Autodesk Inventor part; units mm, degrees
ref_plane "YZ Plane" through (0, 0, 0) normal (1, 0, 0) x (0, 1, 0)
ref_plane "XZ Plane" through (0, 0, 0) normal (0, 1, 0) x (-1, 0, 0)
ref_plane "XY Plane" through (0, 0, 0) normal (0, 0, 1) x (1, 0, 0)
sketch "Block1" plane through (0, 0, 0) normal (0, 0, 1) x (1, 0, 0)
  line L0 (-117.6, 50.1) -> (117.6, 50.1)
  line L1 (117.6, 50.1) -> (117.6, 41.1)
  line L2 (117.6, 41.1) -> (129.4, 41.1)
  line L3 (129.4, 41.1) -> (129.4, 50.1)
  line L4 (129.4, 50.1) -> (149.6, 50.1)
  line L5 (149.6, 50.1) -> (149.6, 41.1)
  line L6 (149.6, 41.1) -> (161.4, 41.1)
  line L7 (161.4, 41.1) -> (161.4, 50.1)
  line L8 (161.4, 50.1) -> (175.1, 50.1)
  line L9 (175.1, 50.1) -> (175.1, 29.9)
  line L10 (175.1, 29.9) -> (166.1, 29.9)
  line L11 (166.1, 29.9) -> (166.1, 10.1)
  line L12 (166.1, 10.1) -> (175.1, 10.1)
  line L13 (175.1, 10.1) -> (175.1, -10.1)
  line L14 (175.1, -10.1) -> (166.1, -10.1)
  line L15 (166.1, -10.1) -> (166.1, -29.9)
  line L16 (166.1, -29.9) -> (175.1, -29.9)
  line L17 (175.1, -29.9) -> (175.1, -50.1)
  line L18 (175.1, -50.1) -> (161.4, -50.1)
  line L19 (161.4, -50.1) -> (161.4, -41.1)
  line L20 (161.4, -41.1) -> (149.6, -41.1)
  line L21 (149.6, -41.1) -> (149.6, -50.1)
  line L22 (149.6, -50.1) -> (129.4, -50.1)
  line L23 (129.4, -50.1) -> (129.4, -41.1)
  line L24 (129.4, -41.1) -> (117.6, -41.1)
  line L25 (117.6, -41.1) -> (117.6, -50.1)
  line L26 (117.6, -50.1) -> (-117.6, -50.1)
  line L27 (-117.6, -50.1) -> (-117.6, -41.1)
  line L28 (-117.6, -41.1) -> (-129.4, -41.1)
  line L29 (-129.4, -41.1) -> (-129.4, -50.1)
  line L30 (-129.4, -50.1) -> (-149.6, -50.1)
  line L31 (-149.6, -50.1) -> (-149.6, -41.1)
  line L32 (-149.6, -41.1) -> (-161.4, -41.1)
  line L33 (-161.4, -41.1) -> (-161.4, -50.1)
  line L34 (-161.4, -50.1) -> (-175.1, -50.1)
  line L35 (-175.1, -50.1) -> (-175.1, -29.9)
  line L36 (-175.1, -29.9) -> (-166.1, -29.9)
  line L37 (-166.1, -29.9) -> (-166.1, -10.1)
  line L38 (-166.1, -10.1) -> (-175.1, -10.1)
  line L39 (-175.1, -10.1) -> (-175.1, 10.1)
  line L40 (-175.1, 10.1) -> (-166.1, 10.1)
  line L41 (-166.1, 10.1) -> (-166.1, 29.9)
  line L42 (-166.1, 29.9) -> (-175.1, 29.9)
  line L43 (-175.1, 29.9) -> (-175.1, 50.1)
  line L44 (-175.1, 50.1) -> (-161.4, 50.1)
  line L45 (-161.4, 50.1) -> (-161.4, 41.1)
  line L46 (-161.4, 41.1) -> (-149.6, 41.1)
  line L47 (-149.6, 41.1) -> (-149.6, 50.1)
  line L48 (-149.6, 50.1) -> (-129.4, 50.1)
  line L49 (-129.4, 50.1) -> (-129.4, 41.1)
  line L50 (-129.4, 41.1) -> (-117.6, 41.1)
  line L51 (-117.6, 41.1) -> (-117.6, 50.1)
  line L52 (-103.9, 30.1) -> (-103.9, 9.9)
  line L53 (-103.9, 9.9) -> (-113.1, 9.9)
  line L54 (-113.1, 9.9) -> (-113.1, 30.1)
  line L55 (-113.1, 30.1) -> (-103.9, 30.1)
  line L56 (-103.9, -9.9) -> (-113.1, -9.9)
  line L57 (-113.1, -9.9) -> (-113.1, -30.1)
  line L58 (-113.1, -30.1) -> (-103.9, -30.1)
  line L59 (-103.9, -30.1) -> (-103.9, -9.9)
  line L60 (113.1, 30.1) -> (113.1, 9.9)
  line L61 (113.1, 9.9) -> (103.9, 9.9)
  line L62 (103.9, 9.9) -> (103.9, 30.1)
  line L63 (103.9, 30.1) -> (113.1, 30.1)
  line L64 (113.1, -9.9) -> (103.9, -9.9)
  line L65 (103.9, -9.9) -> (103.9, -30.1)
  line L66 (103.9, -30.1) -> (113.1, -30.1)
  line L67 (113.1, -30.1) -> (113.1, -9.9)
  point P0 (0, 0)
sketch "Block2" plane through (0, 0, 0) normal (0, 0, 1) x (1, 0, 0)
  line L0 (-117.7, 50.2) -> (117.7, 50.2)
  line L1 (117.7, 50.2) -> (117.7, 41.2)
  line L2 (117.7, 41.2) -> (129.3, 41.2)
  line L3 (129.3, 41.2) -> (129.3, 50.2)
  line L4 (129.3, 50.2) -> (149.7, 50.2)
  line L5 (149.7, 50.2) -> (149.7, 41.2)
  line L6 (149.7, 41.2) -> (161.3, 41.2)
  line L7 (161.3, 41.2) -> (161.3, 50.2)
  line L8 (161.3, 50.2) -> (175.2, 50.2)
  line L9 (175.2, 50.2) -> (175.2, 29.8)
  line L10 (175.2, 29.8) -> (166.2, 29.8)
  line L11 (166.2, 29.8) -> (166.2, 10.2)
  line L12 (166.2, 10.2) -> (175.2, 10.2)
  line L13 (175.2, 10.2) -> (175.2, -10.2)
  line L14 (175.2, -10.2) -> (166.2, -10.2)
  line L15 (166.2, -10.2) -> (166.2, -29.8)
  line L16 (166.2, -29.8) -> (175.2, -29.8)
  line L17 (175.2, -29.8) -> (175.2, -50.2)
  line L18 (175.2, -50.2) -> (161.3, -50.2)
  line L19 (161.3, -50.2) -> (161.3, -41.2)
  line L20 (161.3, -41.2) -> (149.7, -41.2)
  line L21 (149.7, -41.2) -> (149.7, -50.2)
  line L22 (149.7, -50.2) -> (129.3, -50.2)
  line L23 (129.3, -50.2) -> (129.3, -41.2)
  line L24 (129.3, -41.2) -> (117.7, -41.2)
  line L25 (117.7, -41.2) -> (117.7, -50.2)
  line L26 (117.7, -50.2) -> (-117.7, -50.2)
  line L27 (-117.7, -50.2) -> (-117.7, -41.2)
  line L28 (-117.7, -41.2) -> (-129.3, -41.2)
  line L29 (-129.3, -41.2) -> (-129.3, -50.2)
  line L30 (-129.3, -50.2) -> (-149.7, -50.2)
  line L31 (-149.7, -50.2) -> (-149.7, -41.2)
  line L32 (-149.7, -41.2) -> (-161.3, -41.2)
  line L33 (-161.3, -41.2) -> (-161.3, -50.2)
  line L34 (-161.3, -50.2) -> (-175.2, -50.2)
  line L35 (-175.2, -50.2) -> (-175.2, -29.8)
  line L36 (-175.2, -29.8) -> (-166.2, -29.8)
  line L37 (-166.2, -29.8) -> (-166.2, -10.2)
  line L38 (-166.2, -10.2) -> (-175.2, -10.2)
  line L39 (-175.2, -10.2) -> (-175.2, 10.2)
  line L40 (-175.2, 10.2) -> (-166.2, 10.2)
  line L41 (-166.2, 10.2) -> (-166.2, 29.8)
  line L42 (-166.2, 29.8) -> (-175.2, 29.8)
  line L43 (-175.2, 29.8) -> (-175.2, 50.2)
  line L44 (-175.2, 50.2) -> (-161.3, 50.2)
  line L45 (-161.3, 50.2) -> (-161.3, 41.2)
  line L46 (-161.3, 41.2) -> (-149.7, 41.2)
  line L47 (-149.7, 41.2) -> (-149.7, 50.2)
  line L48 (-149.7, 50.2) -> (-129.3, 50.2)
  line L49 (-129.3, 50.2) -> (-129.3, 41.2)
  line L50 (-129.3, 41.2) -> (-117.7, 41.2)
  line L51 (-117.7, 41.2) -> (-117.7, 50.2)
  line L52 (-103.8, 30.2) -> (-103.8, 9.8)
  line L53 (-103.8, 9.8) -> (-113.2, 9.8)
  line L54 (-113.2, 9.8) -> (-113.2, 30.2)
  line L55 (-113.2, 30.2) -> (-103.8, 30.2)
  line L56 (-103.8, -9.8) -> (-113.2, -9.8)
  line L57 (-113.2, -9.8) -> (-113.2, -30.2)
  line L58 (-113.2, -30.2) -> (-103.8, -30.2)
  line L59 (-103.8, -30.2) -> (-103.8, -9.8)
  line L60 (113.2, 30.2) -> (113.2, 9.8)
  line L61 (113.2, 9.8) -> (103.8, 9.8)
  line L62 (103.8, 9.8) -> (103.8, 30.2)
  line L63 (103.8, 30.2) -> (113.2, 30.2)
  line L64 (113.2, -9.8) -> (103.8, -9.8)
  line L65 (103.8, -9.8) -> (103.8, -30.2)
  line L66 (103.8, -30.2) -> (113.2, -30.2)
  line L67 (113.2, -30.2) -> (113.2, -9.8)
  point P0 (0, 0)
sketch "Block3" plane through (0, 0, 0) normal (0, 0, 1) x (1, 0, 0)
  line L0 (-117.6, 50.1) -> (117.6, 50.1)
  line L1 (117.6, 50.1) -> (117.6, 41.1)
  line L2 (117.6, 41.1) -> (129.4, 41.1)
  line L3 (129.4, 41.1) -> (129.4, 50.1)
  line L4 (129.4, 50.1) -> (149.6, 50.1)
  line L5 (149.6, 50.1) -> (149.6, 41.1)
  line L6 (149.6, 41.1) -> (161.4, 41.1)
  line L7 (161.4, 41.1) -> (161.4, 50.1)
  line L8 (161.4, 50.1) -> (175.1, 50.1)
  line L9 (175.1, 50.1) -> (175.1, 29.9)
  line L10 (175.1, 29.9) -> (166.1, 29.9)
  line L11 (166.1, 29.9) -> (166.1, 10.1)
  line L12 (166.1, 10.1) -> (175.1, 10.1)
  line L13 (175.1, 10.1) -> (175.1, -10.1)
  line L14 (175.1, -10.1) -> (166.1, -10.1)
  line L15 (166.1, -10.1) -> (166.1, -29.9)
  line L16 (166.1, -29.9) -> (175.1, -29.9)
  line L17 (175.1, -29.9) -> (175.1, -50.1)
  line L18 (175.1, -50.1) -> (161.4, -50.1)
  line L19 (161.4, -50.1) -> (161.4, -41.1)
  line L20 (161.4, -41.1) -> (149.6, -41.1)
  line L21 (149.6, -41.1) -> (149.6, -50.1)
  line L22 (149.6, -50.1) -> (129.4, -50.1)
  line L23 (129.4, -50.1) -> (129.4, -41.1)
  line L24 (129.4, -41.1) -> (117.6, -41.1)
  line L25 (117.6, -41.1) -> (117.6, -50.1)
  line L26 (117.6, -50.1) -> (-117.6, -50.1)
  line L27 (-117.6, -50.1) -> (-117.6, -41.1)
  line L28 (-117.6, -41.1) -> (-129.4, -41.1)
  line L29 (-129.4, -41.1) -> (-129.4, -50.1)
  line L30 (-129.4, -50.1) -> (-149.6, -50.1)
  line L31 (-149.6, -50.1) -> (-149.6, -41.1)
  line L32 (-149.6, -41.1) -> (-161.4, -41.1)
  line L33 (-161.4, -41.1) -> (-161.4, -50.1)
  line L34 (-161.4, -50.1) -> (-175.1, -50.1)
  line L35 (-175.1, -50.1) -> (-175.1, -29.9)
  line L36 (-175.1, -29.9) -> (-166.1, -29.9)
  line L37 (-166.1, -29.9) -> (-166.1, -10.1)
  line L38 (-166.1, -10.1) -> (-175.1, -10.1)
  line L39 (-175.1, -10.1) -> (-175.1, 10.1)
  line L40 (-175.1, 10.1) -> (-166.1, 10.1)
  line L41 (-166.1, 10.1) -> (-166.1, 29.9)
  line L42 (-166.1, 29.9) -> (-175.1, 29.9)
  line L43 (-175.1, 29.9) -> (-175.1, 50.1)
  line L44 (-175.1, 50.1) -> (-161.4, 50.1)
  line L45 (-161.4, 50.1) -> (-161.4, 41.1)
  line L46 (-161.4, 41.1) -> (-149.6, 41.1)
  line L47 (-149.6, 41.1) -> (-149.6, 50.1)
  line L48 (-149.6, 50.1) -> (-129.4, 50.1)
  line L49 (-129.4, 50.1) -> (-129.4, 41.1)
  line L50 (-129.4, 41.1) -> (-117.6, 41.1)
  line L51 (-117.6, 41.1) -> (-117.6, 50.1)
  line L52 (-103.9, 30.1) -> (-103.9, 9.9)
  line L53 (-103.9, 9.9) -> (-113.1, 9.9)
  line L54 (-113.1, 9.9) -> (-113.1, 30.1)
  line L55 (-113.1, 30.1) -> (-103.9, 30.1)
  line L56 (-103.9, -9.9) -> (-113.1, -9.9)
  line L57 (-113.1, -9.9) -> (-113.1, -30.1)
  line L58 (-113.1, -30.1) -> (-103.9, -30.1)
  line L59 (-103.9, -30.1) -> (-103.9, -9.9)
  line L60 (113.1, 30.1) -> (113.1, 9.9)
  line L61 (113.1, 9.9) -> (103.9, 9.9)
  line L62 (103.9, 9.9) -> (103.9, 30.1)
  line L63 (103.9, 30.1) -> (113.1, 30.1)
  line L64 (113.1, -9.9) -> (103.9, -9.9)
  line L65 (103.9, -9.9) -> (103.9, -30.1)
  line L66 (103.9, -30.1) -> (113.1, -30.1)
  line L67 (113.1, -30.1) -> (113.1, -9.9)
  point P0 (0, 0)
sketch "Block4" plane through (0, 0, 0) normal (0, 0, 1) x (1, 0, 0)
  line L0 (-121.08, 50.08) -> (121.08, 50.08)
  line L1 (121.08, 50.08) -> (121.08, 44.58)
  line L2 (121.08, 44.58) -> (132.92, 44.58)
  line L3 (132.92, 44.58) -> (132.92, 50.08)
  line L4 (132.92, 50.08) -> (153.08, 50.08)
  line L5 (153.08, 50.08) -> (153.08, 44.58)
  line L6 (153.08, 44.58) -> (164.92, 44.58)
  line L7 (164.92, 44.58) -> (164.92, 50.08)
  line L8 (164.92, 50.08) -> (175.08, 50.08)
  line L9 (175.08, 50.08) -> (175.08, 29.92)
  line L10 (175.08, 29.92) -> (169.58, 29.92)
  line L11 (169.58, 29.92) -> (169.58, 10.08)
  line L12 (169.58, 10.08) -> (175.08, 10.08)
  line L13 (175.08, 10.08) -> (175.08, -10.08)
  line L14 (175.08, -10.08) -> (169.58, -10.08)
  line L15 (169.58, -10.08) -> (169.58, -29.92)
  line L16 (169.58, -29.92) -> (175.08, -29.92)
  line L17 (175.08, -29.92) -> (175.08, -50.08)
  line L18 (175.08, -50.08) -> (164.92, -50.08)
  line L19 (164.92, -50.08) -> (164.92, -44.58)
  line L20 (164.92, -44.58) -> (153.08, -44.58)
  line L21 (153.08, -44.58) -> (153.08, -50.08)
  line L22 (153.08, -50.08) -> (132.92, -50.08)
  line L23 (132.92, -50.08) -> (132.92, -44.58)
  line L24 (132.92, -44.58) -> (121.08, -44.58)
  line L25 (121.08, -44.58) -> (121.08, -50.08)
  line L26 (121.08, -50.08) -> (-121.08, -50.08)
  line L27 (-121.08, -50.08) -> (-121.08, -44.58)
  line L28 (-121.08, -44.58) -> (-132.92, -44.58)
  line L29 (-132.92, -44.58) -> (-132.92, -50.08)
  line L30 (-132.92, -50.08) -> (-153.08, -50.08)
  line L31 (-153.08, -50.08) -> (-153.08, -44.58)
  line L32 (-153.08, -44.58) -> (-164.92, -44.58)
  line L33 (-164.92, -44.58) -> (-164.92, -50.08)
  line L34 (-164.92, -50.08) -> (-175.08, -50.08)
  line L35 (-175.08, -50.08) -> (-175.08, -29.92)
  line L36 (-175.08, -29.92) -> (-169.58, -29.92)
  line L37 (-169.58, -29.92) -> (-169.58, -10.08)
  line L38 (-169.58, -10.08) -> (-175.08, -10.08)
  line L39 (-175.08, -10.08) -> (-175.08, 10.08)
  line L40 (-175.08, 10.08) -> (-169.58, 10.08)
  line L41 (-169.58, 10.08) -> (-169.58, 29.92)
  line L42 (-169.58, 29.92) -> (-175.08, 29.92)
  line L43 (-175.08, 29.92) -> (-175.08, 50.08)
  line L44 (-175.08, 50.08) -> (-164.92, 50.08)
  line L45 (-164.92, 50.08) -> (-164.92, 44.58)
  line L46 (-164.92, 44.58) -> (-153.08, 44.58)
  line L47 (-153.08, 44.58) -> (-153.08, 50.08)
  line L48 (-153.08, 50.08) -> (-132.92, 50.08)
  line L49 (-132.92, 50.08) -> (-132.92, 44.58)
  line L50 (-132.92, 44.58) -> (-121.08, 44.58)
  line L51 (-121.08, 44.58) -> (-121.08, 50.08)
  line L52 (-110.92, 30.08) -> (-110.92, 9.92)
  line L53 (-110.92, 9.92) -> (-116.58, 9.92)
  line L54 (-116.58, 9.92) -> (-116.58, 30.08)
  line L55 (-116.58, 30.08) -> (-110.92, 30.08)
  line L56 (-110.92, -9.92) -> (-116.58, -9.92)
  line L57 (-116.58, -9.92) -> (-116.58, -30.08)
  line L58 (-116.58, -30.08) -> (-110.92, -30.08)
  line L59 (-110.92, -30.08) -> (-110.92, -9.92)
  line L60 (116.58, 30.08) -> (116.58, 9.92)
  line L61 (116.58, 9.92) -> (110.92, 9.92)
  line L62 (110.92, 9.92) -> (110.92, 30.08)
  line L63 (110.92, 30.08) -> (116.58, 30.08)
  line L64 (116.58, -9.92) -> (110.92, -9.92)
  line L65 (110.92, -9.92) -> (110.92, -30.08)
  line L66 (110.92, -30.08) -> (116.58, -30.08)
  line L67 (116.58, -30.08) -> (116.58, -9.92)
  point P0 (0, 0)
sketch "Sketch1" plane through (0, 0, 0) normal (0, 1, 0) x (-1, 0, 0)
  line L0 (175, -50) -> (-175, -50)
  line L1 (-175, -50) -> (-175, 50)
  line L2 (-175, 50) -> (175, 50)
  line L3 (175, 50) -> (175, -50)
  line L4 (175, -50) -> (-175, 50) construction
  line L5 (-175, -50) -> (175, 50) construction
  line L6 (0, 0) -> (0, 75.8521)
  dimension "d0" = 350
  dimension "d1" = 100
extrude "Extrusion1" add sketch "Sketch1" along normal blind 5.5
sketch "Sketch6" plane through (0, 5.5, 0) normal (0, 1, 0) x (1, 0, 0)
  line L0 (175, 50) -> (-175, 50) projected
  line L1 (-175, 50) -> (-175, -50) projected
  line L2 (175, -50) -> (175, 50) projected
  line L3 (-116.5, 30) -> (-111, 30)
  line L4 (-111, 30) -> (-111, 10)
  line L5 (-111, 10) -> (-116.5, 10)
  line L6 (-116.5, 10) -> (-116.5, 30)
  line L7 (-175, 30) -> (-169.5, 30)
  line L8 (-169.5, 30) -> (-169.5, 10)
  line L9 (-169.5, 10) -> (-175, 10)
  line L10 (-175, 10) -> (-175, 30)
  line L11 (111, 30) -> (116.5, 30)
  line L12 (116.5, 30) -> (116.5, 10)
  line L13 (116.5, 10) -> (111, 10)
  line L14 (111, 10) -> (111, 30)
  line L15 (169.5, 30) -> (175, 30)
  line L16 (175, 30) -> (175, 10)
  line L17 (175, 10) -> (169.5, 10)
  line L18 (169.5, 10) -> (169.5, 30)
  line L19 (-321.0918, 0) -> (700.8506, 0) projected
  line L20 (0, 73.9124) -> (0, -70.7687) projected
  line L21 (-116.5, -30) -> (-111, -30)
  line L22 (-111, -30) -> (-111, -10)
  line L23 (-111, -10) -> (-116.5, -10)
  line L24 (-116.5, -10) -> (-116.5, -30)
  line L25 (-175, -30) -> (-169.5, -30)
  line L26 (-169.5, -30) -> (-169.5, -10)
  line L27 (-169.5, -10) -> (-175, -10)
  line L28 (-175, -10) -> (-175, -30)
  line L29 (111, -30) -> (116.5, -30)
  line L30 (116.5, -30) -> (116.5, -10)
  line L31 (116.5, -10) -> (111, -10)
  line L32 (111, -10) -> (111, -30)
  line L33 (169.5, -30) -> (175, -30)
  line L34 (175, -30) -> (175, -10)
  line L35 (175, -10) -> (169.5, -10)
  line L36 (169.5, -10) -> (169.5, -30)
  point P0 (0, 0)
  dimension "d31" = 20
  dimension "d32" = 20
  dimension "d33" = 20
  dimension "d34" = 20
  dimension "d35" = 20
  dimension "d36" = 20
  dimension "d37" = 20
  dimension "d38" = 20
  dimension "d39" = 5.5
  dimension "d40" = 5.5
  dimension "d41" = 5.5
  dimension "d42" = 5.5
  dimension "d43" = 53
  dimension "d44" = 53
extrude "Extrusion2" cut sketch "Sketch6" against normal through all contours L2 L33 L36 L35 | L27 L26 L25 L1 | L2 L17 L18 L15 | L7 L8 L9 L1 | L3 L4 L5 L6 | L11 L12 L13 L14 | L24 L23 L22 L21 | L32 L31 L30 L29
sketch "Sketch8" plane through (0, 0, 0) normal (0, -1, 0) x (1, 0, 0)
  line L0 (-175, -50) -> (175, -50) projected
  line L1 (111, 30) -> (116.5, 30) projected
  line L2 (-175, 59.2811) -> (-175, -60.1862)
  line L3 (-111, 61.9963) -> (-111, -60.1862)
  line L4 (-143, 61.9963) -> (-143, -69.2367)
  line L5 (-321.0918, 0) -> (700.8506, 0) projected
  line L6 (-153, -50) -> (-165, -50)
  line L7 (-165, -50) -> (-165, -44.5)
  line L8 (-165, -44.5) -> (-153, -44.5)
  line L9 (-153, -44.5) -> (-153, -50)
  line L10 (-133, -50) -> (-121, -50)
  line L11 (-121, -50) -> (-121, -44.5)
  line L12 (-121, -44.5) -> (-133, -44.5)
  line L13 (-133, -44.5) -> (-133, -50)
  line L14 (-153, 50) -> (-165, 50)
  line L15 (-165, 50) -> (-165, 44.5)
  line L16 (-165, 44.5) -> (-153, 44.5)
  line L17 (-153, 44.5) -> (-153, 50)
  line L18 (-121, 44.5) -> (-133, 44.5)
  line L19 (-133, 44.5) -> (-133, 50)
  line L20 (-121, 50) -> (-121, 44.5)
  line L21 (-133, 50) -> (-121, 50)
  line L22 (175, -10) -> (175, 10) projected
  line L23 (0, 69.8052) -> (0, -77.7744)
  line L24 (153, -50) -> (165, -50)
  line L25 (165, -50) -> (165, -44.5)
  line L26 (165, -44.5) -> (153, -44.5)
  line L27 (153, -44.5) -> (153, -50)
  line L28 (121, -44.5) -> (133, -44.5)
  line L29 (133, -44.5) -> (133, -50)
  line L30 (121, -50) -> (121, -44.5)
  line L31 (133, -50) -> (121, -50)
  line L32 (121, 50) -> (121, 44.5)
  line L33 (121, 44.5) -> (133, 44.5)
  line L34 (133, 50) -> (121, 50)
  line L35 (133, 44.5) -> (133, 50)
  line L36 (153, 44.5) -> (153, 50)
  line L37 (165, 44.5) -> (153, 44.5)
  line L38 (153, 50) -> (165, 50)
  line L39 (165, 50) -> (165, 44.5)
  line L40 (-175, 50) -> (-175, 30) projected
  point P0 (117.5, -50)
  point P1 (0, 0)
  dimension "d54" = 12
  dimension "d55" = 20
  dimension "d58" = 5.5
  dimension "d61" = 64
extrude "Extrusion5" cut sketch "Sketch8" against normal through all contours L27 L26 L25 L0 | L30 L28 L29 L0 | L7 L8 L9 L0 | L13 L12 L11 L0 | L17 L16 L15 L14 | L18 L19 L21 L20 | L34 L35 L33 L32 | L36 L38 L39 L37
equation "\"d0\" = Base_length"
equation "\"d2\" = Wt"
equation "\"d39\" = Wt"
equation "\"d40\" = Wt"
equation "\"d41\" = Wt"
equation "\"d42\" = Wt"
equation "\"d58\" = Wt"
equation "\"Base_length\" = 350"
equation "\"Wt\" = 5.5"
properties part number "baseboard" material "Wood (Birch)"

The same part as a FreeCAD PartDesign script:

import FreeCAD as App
import Part
import Sketcher
from FreeCAD import Vector
Q = App.Units.Quantity

doc = App.newDocument("Part")
body = doc.addObject("PartDesign::Body", "Body")

sketch1 = body.newObject("Sketcher::SketchObject", "Sketch")
sketch1.AttachmentSupport = (doc.getObject("XZ_Plane"), [""])
sketch1.MapMode = "FlatFace"
sketch1.addGeometry(Part.LineSegment(Vector(175, -50, 0), Vector(-175, -50, 0)), False)
sketch1.addGeometry(Part.LineSegment(Vector(-175, -50, 0), Vector(-175, 50, 0)), False)
sketch1.addGeometry(Part.LineSegment(Vector(-175, 50, 0), Vector(175, 50, 0)), False)
sketch1.addGeometry(Part.LineSegment(Vector(175, 50, 0), Vector(175, -50, 0)), False)
sketch1.addConstraint(Sketcher.Constraint("Coincident", 0, 2, 1, 1))
sketch1.addConstraint(Sketcher.Constraint("Coincident", 1, 2, 2, 1))
sketch1.addConstraint(Sketcher.Constraint("Coincident", 2, 2, 3, 1))
sketch1.addConstraint(Sketcher.Constraint("Coincident", 3, 2, 0, 1))
sketch1.addConstraint(Sketcher.Constraint("Horizontal", 0))
sketch1.addConstraint(Sketcher.Constraint("Vertical", 1))
sketch1.addConstraint(Sketcher.Constraint("Horizontal", 2))
sketch1.addConstraint(Sketcher.Constraint("Vertical", 3))
sketch1.addConstraint(Sketcher.Constraint("Symmetric", 0, 2, 2, 2, -1, 1))
sketch1.addConstraint(Sketcher.Constraint("DistanceX", 0, 2, 0, 1, Q("350 mm")))
sketch1.addConstraint(Sketcher.Constraint("DistanceY", 1, 1, 1, 2, Q("100 mm")))
pad1 = body.newObject("PartDesign::Pad", "Pad")
pad1.Profile = sketch1
pad1.Length = 5.5
pad1.Reversed = True

sketch2 = body.newObject("Sketcher::SketchObject", "Sketch001")
sketch2.AttachmentSupport = (doc.getObject("XZ_Plane"), [""])
sketch2.MapMode = "FlatFace"
sketch2.AttachmentOffset = App.Placement(Vector(0, 0, -5.5), App.Rotation())
sketch2.addGeometry(Part.LineSegment(Vector(175, 30, 0), Vector(175, 10, 0)), False)
sketch2.addGeometry(Part.LineSegment(Vector(175, 10, 0), Vector(170, 10, 0)), False)
sketch2.addGeometry(Part.LineSegment(Vector(170, 10, 0), Vector(170, 30, 0)), False)
sketch2.addGeometry(Part.LineSegment(Vector(170, 30, 0), Vector(175, 30, 0)), False)
sketch2.addGeometry(Part.LineSegment(Vector(-170, 10, 0), Vector(-175, 10, 0)), False)
sketch2.addGeometry(Part.LineSegment(Vector(-175, 10, 0), Vector(-175, 30, 0)), False)
sketch2.addGeometry(Part.LineSegment(Vector(-175, 30, 0), Vector(-170, 30, 0)), False)
sketch2.addGeometry(Part.LineSegment(Vector(-170, 30, 0), Vector(-170, 10, 0)), False)
sketch2.addGeometry(Part.LineSegment(Vector(175, -10, 0), Vector(175, -30, 0)), False)
sketch2.addGeometry(Part.LineSegment(Vector(175, -30, 0), Vector(170, -30, 0)), False)
sketch2.addGeometry(Part.LineSegment(Vector(170, -30, 0), Vector(170, -10, 0)), False)
sketch2.addGeometry(Part.LineSegment(Vector(170, -10, 0), Vector(175, -10, 0)), False)
sketch2.addGeometry(Part.LineSegment(Vector(-170, -30, 0), Vector(-175, -30, 0)), False)
sketch2.addGeometry(Part.LineSegment(Vector(-175, -30, 0), Vector(-175, -10, 0)), False)
sketch2.addGeometry(Part.LineSegment(Vector(-175, -10, 0), Vector(-170, -10, 0)), False)
sketch2.addGeometry(Part.LineSegment(Vector(-170, -10, 0), Vector(-170, -30, 0)), False)
sketch2.addGeometry(Part.LineSegment(Vector(-111, -30, 0), Vector(-116, -30, 0)), False)
sketch2.addGeometry(Part.LineSegment(Vector(-116, -30, 0), Vector(-116, -10, 0)), False)
sketch2.addGeometry(Part.LineSegment(Vector(-116, -10, 0), Vector(-111, -10, 0)), False)
sketch2.addGeometry(Part.LineSegment(Vector(-111, -10, 0), Vector(-111, -30, 0)), False)
sketch2.addGeometry(Part.LineSegment(Vector(116, -30, 0), Vector(111, -30, 0)), False)
sketch2.addGeometry(Part.LineSegment(Vector(111, -30, 0), Vector(111, -10, 0)), False)
sketch2.addGeometry(Part.LineSegment(Vector(111, -10, 0), Vector(116, -10, 0)), False)
sketch2.addGeometry(Part.LineSegment(Vector(116, -10, 0), Vector(116, -30, 0)), False)
sketch2.addGeometry(Part.LineSegment(Vector(-116, 10, 0), Vector(-116, 30, 0)), False)
sketch2.addGeometry(Part.LineSegment(Vector(-116, 30, 0), Vector(-111, 30, 0)), False)
sketch2.addGeometry(Part.LineSegment(Vector(-111, 30, 0), Vector(-111, 10, 0)), False)
sketch2.addGeometry(Part.LineSegment(Vector(-111, 10, 0), Vector(-116, 10, 0)), False)
sketch2.addGeometry(Part.LineSegment(Vector(111, 10, 0), Vector(111, 30, 0)), False)
sketch2.addGeometry(Part.LineSegment(Vector(111, 30, 0), Vector(116, 30, 0)), False)
sketch2.addGeometry(Part.LineSegment(Vector(116, 30, 0), Vector(116, 10, 0)), False)
sketch2.addGeometry(Part.LineSegment(Vector(116, 10, 0), Vector(111, 10, 0)), False)
sketch2.addConstraint(Sketcher.Constraint("Coincident", 0, 2, 1, 1))
sketch2.addConstraint(Sketcher.Constraint("Coincident", 1, 2, 2, 1))
sketch2.addConstraint(Sketcher.Constraint("Coincident", 2, 2, 3, 1))
sketch2.addConstraint(Sketcher.Constraint("Coincident", 3, 2, 0, 1))
sketch2.addConstraint(Sketcher.Constraint("Coincident", 4, 2, 5, 1))
sketch2.addConstraint(Sketcher.Constraint("Coincident", 5, 2, 6, 1))
sketch2.addConstraint(Sketcher.Constraint("Coincident", 6, 2, 7, 1))
sketch2.addConstraint(Sketcher.Constraint("Coincident", 7, 2, 4, 1))
sketch2.addConstraint(Sketcher.Constraint("Coincident", 8, 2, 9, 1))
sketch2.addConstraint(Sketcher.Constraint("Coincident", 9, 2, 10, 1))
sketch2.addConstraint(Sketcher.Constraint("Coincident", 10, 2, 11, 1))
sketch2.addConstraint(Sketcher.Constraint("Coincident", 11, 2, 8, 1))
sketch2.addConstraint(Sketcher.Constraint("Coincident", 12, 2, 13, 1))
sketch2.addConstraint(Sketcher.Constraint("Coincident", 13, 2, 14, 1))
sketch2.addConstraint(Sketcher.Constraint("Coincident", 14, 2, 15, 1))
sketch2.addConstraint(Sketcher.Constraint("Coincident", 15, 2, 12, 1))
sketch2.addConstraint(Sketcher.Constraint("Coincident", 16, 2, 17, 1))
sketch2.addConstraint(Sketcher.Constraint("Coincident", 17, 2, 18, 1))
sketch2.addConstraint(Sketcher.Constraint("Coincident", 18, 2, 19, 1))
sketch2.addConstraint(Sketcher.Constraint("Coincident", 19, 2, 16, 1))
sketch2.addConstraint(Sketcher.Constraint("Coincident", 20, 2, 21, 1))
sketch2.addConstraint(Sketcher.Constraint("Coincident", 21, 2, 22, 1))
sketch2.addConstraint(Sketcher.Constraint("Coincident", 22, 2, 23, 1))
sketch2.addConstraint(Sketcher.Constraint("Coincident", 23, 2, 20, 1))
sketch2.addConstraint(Sketcher.Constraint("Coincident", 24, 2, 25, 1))
sketch2.addConstraint(Sketcher.Constraint("Coincident", 25, 2, 26, 1))
sketch2.addConstraint(Sketcher.Constraint("Coincident", 26, 2, 27, 1))
sketch2.addConstraint(Sketcher.Constraint("Coincident", 27, 2, 24, 1))
sketch2.addConstraint(Sketcher.Constraint("Coincident", 28, 2, 29, 1))
sketch2.addConstraint(Sketcher.Constraint("Coincident", 29, 2, 30, 1))
sketch2.addConstraint(Sketcher.Constraint("Coincident", 30, 2, 31, 1))
sketch2.addConstraint(Sketcher.Constraint("Coincident", 31, 2, 28, 1))
sketch2.addConstraint(Sketcher.Constraint("Vertical", 0))
sketch2.addConstraint(Sketcher.Constraint("Horizontal", 1))
sketch2.addConstraint(Sketcher.Constraint("Vertical", 2))
sketch2.addConstraint(Sketcher.Constraint("Horizontal", 3))
sketch2.addConstraint(Sketcher.Constraint("Horizontal", 4))
sketch2.addConstraint(Sketcher.Constraint("Vertical", 5))
sketch2.addConstraint(Sketcher.Constraint("Horizontal", 6))
sketch2.addConstraint(Sketcher.Constraint("Vertical", 7))
sketch2.addConstraint(Sketcher.Constraint("Vertical", 8))
sketch2.addConstraint(Sketcher.Constraint("Horizontal", 9))
sketch2.addConstraint(Sketcher.Constraint("Vertical", 10))
sketch2.addConstraint(Sketcher.Constraint("Horizontal", 11))
sketch2.addConstraint(Sketcher.Constraint("Horizontal", 12))
sketch2.addConstraint(Sketcher.Constraint("Vertical", 13))
sketch2.addConstraint(Sketcher.Constraint("Horizontal", 14))
sketch2.addConstraint(Sketcher.Constraint("Vertical", 15))
sketch2.addConstraint(Sketcher.Constraint("Horizontal", 16))
sketch2.addConstraint(Sketcher.Constraint("Vertical", 17))
sketch2.addConstraint(Sketcher.Constraint("Horizontal", 18))
sketch2.addConstraint(Sketcher.Constraint("Vertical", 19))
sketch2.addConstraint(Sketcher.Constraint("Horizontal", 20))
sketch2.addConstraint(Sketcher.Constraint("Vertical", 21))
sketch2.addConstraint(Sketcher.Constraint("Horizontal", 22))
sketch2.addConstraint(Sketcher.Constraint("Vertical", 23))
sketch2.addConstraint(Sketcher.Constraint("Vertical", 24))
sketch2.addConstraint(Sketcher.Constraint("Horizontal", 25))
sketch2.addConstraint(Sketcher.Constraint("Vertical", 26))
sketch2.addConstraint(Sketcher.Constraint("Horizontal", 27))
sketch2.addConstraint(Sketcher.Constraint("Vertical", 28))
sketch2.addConstraint(Sketcher.Constraint("Horizontal", 29))
sketch2.addConstraint(Sketcher.Constraint("Vertical", 30))
sketch2.addConstraint(Sketcher.Constraint("Horizontal", 31))
sketch2.addConstraint(Sketcher.Constraint("Symmetric", 5, 2, 8, 2, -1, 1))
sketch2.addConstraint(Sketcher.Constraint("Symmetric", 7, 2, 10, 2, -1, 1))
sketch2.addConstraint(Sketcher.Constraint("Symmetric", 3, 2, 12, 2, -1, 1))
sketch2.addConstraint(Sketcher.Constraint("Symmetric", 1, 2, 14, 2, -1, 1))
sketch2.addConstraint(Sketcher.Constraint("Symmetric", 23, 2, 24, 2, -1, 1))
sketch2.addConstraint(Sketcher.Constraint("Symmetric", 21, 2, 26, 2, -1, 1))
sketch2.addConstraint(Sketcher.Constraint("Symmetric", 19, 2, 28, 2, -1, 1))
sketch2.addConstraint(Sketcher.Constraint("Symmetric", 17, 2, 30, 2, -1, 1))
sketch2.addConstraint(Sketcher.Constraint("Symmetric", 0, 2, 4, 2, -2))
sketch2.addConstraint(Sketcher.Constraint("Symmetric", 2, 2, 6, 2, -2))
sketch2.addConstraint(Sketcher.Constraint("Symmetric", 19, 2, 20, 2, -2))
sketch2.addConstraint(Sketcher.Constraint("Symmetric", 17, 2, 22, 2, -2))
sketch2.addConstraint(Sketcher.Constraint("Horizontal", 15, 2, 16, 2))
sketch2.addConstraint(Sketcher.Constraint("Horizontal", 14, 2, 17, 2))
sketch2.addConstraint(Sketcher.Constraint("Equal", 14, 16))
sketch2.addConstraint(Sketcher.Constraint("DistanceY", 0, 2, 0, 1, Q("20 mm")))
sketch2.addConstraint(Sketcher.Constraint("DistanceX", 1, 2, 1, 1, Q("5.5 mm")))
sketch2.addConstraint(Sketcher.Constraint("DistanceY", 10, 2, 1, 2, Q("20 mm")))
sketch2.addConstraint(Sketcher.Constraint("DistanceX", 15, 2, 16, 2, Q("53 mm")))
sketch2.addConstraint(Sketcher.Constraint("DistanceX", -1, 1, 0, 2, Q("175 mm")))
pocket1 = body.newObject("PartDesign::Pocket", "Pocket")
pocket1.Profile = sketch2
pocket1.Type = "ThroughAll"
pocket1.Reversed = True

sketch3 = body.newObject("Sketcher::SketchObject", "Sketch002")
sketch3.AttachmentSupport = (doc.getObject("XZ_Plane"), [""])
sketch3.MapMode = "FlatFace"
sketch3.addGeometry(Part.LineSegment(Vector(153, -44, 0), Vector(153, -50, 0)), False)
sketch3.addGeometry(Part.LineSegment(Vector(153, -50, 0), Vector(165, -50, 0)), False)
sketch3.addGeometry(Part.LineSegment(Vector(165, -50, 0), Vector(165, -44, 0)), False)
sketch3.addGeometry(Part.LineSegment(Vector(165, -44, 0), Vector(153, -44, 0)), False)
sketch3.addGeometry(Part.LineSegment(Vector(121, -44, 0), Vector(121, -50, 0)), False)
sketch3.addGeometry(Part.LineSegment(Vector(121, -50, 0), Vector(133, -50, 0)), False)
sketch3.addGeometry(Part.LineSegment(Vector(133, -50, 0), Vector(133, -44, 0)), False)
sketch3.addGeometry(Part.LineSegment(Vector(133, -44, 0), Vector(121, -44, 0)), False)
sketch3.addGeometry(Part.LineSegment(Vector(-165, -44, 0), Vector(-165, -50, 0)), False)
sketch3.addGeometry(Part.LineSegment(Vector(-165, -50, 0), Vector(-153, -50, 0)), False)
sketch3.addGeometry(Part.LineSegment(Vector(-153, -50, 0), Vector(-153, -44, 0)), False)
sketch3.addGeometry(Part.LineSegment(Vector(-153, -44, 0), Vector(-165, -44, 0)), False)
sketch3.addGeometry(Part.LineSegment(Vector(-133, -44, 0), Vector(-133, -50, 0)), False)
sketch3.addGeometry(Part.LineSegment(Vector(-133, -50, 0), Vector(-121, -50, 0)), False)
sketch3.addGeometry(Part.LineSegment(Vector(-121, -50, 0), Vector(-121, -44, 0)), False)
sketch3.addGeometry(Part.LineSegment(Vector(-121, -44, 0), Vector(-133, -44, 0)), False)
sketch3.addGeometry(Part.LineSegment(Vector(-153, 44, 0), Vector(-153, 50, 0)), False)
sketch3.addGeometry(Part.LineSegment(Vector(-153, 50, 0), Vector(-165, 50, 0)), False)
sketch3.addGeometry(Part.LineSegment(Vector(-165, 50, 0), Vector(-165, 44, 0)), False)
sketch3.addGeometry(Part.LineSegment(Vector(-165, 44, 0), Vector(-153, 44, 0)), False)
sketch3.addGeometry(Part.LineSegment(Vector(-133, 44, 0), Vector(-121, 44, 0)), False)
sketch3.addGeometry(Part.LineSegment(Vector(-121, 44, 0), Vector(-121, 50, 0)), False)
sketch3.addGeometry(Part.LineSegment(Vector(-121, 50, 0), Vector(-133, 50, 0)), False)
sketch3.addGeometry(Part.LineSegment(Vector(-133, 50, 0), Vector(-133, 44, 0)), False)
sketch3.addGeometry(Part.LineSegment(Vector(133, 50, 0), Vector(121, 50, 0)), False)
sketch3.addGeometry(Part.LineSegment(Vector(121, 50, 0), Vector(121, 44, 0)), False)
sketch3.addGeometry(Part.LineSegment(Vector(121, 44, 0), Vector(133, 44, 0)), False)
sketch3.addGeometry(Part.LineSegment(Vector(133, 44, 0), Vector(133, 50, 0)), False)
sketch3.addGeometry(Part.LineSegment(Vector(153, 50, 0), Vector(153, 44, 0)), False)
sketch3.addGeometry(Part.LineSegment(Vector(153, 44, 0), Vector(165, 44, 0)), False)
sketch3.addGeometry(Part.LineSegment(Vector(165, 44, 0), Vector(165, 50, 0)), False)
sketch3.addGeometry(Part.LineSegment(Vector(165, 50, 0), Vector(153, 50, 0)), False)
sketch3.addConstraint(Sketcher.Constraint("Coincident", 0, 2, 1, 1))
sketch3.addConstraint(Sketcher.Constraint("Coincident", 1, 2, 2, 1))
sketch3.addConstraint(Sketcher.Constraint("Coincident", 2, 2, 3, 1))
sketch3.addConstraint(Sketcher.Constraint("Coincident", 3, 2, 0, 1))
sketch3.addConstraint(Sketcher.Constraint("Coincident", 4, 2, 5, 1))
sketch3.addConstraint(Sketcher.Constraint("Coincident", 5, 2, 6, 1))
sketch3.addConstraint(Sketcher.Constraint("Coincident", 6, 2, 7, 1))
sketch3.addConstraint(Sketcher.Constraint("Coincident", 7, 2, 4, 1))
sketch3.addConstraint(Sketcher.Constraint("Coincident", 8, 2, 9, 1))
sketch3.addConstraint(Sketcher.Constraint("Coincident", 9, 2, 10, 1))
sketch3.addConstraint(Sketcher.Constraint("Coincident", 10, 2, 11, 1))
sketch3.addConstraint(Sketcher.Constraint("Coincident", 11, 2, 8, 1))
sketch3.addConstraint(Sketcher.Constraint("Coincident", 12, 2, 13, 1))
sketch3.addConstraint(Sketcher.Constraint("Coincident", 13, 2, 14, 1))
sketch3.addConstraint(Sketcher.Constraint("Coincident", 14, 2, 15, 1))
sketch3.addConstraint(Sketcher.Constraint("Coincident", 15, 2, 12, 1))
sketch3.addConstraint(Sketcher.Constraint("Coincident", 16, 2, 17, 1))
sketch3.addConstraint(Sketcher.Constraint("Coincident", 17, 2, 18, 1))
sketch3.addConstraint(Sketcher.Constraint("Coincident", 18, 2, 19, 1))
sketch3.addConstraint(Sketcher.Constraint("Coincident", 19, 2, 16, 1))
sketch3.addConstraint(Sketcher.Constraint("Coincident", 20, 2, 21, 1))
sketch3.addConstraint(Sketcher.Constraint("Coincident", 21, 2, 22, 1))
sketch3.addConstraint(Sketcher.Constraint("Coincident", 22, 2, 23, 1))
sketch3.addConstraint(Sketcher.Constraint("Coincident", 23, 2, 20, 1))
sketch3.addConstraint(Sketcher.Constraint("Coincident", 24, 2, 25, 1))
sketch3.addConstraint(Sketcher.Constraint("Coincident", 25, 2, 26, 1))
sketch3.addConstraint(Sketcher.Constraint("Coincident", 26, 2, 27, 1))
sketch3.addConstraint(Sketcher.Constraint("Coincident", 27, 2, 24, 1))
sketch3.addConstraint(Sketcher.Constraint("Coincident", 28, 2, 29, 1))
sketch3.addConstraint(Sketcher.Constraint("Coincident", 29, 2, 30, 1))
sketch3.addConstraint(Sketcher.Constraint("Coincident", 30, 2, 31, 1))
sketch3.addConstraint(Sketcher.Constraint("Coincident", 31, 2, 28, 1))
sketch3.addConstraint(Sketcher.Constraint("Vertical", 0))
sketch3.addConstraint(Sketcher.Constraint("Horizontal", 1))
sketch3.addConstraint(Sketcher.Constraint("Vertical", 2))
sketch3.addConstraint(Sketcher.Constraint("Horizontal", 3))
sketch3.addConstraint(Sketcher.Constraint("Vertical", 4))
sketch3.addConstraint(Sketcher.Constraint("Horizontal", 5))
sketch3.addConstraint(Sketcher.Constraint("Vertical", 6))
sketch3.addConstraint(Sketcher.Constraint("Horizontal", 7))
sketch3.addConstraint(Sketcher.Constraint("Vertical", 8))
sketch3.addConstraint(Sketcher.Constraint("Horizontal", 9))
sketch3.addConstraint(Sketcher.Constraint("Vertical", 10))
sketch3.addConstraint(Sketcher.Constraint("Horizontal", 11))
sketch3.addConstraint(Sketcher.Constraint("Vertical", 12))
sketch3.addConstraint(Sketcher.Constraint("Horizontal", 13))
sketch3.addConstraint(Sketcher.Constraint("Vertical", 14))
sketch3.addConstraint(Sketcher.Constraint("Horizontal", 15))
sketch3.addConstraint(Sketcher.Constraint("Vertical", 16))
sketch3.addConstraint(Sketcher.Constraint("Horizontal", 17))
sketch3.addConstraint(Sketcher.Constraint("Vertical", 18))
sketch3.addConstraint(Sketcher.Constraint("Horizontal", 19))
sketch3.addConstraint(Sketcher.Constraint("Horizontal", 20))
sketch3.addConstraint(Sketcher.Constraint("Vertical", 21))
sketch3.addConstraint(Sketcher.Constraint("Horizontal", 22))
sketch3.addConstraint(Sketcher.Constraint("Vertical", 23))
sketch3.addConstraint(Sketcher.Constraint("Horizontal", 24))
sketch3.addConstraint(Sketcher.Constraint("Vertical", 25))
sketch3.addConstraint(Sketcher.Constraint("Horizontal", 26))
sketch3.addConstraint(Sketcher.Constraint("Vertical", 27))
sketch3.addConstraint(Sketcher.Constraint("Vertical", 28))
sketch3.addConstraint(Sketcher.Constraint("Horizontal", 29))
sketch3.addConstraint(Sketcher.Constraint("Vertical", 30))
sketch3.addConstraint(Sketcher.Constraint("Horizontal", 31))
sketch3.addConstraint(Sketcher.Constraint("Symmetric", 0, 2, 16, 2, -1, 1))
sketch3.addConstraint(Sketcher.Constraint("Symmetric", 2, 2, 18, 2, -1, 1))
sketch3.addConstraint(Sketcher.Constraint("Symmetric", 7, 2, 20, 2, -1, 1))
sketch3.addConstraint(Sketcher.Constraint("Symmetric", 5, 2, 22, 2, -1, 1))
sketch3.addConstraint(Sketcher.Constraint("Symmetric", 13, 2, 24, 2, -1, 1))
sketch3.addConstraint(Sketcher.Constraint("Symmetric", 15, 2, 26, 2, -1, 1))
sketch3.addConstraint(Sketcher.Constraint("Symmetric", 10, 2, 28, 2, -1, 1))
sketch3.addConstraint(Sketcher.Constraint("Symmetric", 8, 2, 30, 2, -1, 1))
sketch3.addConstraint(Sketcher.Constraint("Symmetric", 1, 2, 8, 2, -2))
sketch3.addConstraint(Sketcher.Constraint("Symmetric", 3, 2, 10, 2, -2))
sketch3.addConstraint(Sketcher.Constraint("Symmetric", 5, 2, 12, 2, -2))
sketch3.addConstraint(Sketcher.Constraint("Symmetric", 7, 2, 14, 2, -2))
sketch3.addConstraint(Sketcher.Constraint("Horizontal", 1, 2, 4, 2))
sketch3.addConstraint(Sketcher.Constraint("Horizontal", 3, 2, 6, 2))
sketch3.addConstraint(Sketcher.Constraint("Equal", 3, 5))
sketch3.addConstraint(Sketcher.Constraint("DistanceX", 1, 1, 1, 2, Q("12 mm")))
sketch3.addConstraint(Sketcher.Constraint("DistanceY", 0, 2, 0, 1, Q("5.5 mm")))
sketch3.addConstraint(Sketcher.Constraint("DistanceX", 5, 2, 0, 2, Q("20 mm")))
sketch3.addConstraint(Sketcher.Constraint("DistanceX", -1, 1, 0, 2, Q("153 mm")))
sketch3.addConstraint(Sketcher.Constraint("DistanceY", 0, 2, -1, 1, Q("50 mm")))
pocket2 = body.newObject("PartDesign::Pocket", "Pocket001")
pocket2.Profile = sketch3
pocket2.Type = "ThroughAll"

doc.recompute()
